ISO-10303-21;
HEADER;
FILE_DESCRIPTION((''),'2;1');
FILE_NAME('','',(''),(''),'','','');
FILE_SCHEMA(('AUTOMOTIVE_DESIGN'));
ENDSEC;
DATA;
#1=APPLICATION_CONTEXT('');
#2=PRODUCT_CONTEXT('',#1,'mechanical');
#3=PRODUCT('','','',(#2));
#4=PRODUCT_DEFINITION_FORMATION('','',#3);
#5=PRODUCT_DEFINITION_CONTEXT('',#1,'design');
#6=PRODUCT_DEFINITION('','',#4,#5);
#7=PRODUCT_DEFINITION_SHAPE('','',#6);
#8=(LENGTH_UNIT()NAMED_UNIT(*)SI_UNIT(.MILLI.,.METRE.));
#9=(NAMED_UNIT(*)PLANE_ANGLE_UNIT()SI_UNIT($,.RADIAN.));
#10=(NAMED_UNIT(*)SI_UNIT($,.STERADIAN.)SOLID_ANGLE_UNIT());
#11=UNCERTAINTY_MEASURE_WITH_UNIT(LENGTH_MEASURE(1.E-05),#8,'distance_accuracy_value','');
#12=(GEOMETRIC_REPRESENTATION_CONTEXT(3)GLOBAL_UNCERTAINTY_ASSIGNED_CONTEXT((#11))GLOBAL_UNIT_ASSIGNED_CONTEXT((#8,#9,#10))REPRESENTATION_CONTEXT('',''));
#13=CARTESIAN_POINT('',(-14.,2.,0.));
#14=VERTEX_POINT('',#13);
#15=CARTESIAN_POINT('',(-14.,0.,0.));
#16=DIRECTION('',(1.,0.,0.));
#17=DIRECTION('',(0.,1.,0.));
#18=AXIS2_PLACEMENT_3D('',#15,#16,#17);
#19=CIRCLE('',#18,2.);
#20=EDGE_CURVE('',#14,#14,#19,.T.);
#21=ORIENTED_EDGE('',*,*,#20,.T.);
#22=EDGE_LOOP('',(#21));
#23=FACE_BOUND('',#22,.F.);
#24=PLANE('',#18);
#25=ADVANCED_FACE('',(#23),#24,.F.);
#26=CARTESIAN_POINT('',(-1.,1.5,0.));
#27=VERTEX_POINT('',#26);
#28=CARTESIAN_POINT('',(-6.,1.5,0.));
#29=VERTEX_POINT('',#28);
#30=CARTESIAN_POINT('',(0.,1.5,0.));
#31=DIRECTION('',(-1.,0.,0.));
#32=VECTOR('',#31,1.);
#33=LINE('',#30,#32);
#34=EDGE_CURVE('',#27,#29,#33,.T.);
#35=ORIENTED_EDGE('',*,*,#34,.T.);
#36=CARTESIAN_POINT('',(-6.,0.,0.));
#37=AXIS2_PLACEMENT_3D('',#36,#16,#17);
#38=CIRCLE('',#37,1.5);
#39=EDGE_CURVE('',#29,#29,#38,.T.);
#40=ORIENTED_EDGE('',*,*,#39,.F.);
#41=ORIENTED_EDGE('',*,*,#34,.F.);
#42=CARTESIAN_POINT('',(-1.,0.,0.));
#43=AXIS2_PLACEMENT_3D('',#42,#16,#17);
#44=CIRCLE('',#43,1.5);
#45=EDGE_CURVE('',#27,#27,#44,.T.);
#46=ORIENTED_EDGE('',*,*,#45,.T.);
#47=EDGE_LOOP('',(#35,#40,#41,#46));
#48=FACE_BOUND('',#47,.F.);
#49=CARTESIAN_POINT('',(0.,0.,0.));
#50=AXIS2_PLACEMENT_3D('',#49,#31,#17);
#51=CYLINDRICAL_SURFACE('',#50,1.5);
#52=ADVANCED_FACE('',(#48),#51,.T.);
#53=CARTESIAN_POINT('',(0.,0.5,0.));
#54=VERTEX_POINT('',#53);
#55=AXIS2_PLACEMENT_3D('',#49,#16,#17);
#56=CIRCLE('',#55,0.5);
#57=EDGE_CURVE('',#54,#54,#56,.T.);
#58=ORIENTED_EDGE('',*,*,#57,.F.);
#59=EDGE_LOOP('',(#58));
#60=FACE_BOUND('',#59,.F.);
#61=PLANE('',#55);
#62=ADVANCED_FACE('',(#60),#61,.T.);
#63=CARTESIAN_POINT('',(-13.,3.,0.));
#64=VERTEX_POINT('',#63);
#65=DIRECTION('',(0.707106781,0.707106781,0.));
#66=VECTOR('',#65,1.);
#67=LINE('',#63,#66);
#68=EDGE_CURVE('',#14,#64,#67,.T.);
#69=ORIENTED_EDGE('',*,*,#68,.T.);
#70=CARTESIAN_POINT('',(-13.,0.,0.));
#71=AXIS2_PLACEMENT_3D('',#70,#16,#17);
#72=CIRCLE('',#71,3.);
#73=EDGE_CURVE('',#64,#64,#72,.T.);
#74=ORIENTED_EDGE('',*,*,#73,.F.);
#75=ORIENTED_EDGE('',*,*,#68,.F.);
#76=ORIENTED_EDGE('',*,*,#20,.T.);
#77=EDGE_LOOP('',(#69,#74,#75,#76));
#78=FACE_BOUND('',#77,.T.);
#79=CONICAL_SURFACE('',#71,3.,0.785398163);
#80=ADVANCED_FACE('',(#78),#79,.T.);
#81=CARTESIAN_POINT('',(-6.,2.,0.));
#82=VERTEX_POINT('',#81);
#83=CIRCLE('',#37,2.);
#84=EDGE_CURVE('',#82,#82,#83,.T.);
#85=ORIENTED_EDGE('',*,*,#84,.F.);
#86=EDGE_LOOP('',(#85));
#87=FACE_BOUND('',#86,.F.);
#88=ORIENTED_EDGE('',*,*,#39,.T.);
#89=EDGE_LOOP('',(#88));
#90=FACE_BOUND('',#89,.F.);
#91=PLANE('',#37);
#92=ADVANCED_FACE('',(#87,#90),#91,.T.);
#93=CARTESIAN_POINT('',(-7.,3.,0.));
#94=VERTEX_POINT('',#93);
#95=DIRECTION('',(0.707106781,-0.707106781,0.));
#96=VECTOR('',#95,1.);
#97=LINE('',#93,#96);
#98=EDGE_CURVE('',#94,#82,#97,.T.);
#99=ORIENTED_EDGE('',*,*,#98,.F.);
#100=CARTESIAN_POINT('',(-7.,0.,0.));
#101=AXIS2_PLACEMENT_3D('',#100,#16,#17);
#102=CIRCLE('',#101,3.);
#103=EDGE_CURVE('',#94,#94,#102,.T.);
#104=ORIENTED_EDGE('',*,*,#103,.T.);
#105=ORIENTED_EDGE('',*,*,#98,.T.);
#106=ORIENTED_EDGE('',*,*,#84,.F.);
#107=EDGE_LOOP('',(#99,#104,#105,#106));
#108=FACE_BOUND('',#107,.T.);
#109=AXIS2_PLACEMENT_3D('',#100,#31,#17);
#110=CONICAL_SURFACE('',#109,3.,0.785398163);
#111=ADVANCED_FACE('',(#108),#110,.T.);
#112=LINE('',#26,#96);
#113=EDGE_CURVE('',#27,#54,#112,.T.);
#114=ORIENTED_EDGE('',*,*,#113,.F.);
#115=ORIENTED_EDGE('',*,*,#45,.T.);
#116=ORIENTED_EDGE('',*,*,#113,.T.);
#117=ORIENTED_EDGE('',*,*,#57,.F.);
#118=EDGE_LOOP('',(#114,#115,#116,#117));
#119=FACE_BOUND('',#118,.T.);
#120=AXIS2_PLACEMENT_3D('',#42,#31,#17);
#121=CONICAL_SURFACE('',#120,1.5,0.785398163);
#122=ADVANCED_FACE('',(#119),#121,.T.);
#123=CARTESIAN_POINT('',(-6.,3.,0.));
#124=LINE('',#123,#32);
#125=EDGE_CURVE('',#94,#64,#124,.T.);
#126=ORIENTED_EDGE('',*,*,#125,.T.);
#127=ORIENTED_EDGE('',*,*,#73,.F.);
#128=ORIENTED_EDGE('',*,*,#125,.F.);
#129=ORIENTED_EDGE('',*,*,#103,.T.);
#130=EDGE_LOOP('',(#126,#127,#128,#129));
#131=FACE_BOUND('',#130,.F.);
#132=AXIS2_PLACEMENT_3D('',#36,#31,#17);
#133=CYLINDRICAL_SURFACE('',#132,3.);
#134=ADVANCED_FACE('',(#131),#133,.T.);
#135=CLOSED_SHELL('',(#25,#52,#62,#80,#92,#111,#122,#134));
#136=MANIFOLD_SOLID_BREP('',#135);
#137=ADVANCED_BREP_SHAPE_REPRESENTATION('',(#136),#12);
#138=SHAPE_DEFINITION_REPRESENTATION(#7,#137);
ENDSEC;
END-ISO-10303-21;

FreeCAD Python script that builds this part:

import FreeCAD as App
import Part
import Sketcher


def edges_at(feature, points):
    """Names of the edges that pass closest to the given points."""
    edges = feature.Shape.Edges
    near = lambda p: min(range(len(edges)), key=lambda i: edges[i].distToShape(Part.Vertex(*p))[0])
    return sorted({f"Edge{near(p) + 1}" for p in points})

doc = App.newDocument("Part")
body = doc.addObject("PartDesign::Body", "Body")

sketch1 = body.newObject("Sketcher::SketchObject", "Sketch")
sketch1.AttachmentSupport = (doc.getObject("XY_Plane"), [""])
sketch1.MapMode = "FlatFace"
sketch1.addGeometry([
    Part.LineSegment(App.Vector(-14, 3, 0), App.Vector(-14, 0, 0)),
    Part.LineSegment(App.Vector(-14, 0, 0), App.Vector(0, 0, 0)),
    Part.LineSegment(App.Vector(0, 0, 0), App.Vector(0, 1.5, 0)),
    Part.LineSegment(App.Vector(0, 1.5, 0), App.Vector(-6, 1.5, 0)),
    Part.LineSegment(App.Vector(-6, 1.5, 0), App.Vector(-6, 3, 0)),
    Part.LineSegment(App.Vector(-6, 3, 0), App.Vector(-14, 3, 0)),
], False)
sketch1.addConstraint([
    Sketcher.Constraint("Coincident", 0, 2, 1, 1),
    Sketcher.Constraint("Coincident", 1, 2, 2, 1),
    Sketcher.Constraint("Coincident", 2, 2, 3, 1),
    Sketcher.Constraint("Coincident", 3, 2, 4, 1),
    Sketcher.Constraint("Coincident", 4, 2, 5, 1),
    Sketcher.Constraint("Coincident", 5, 2, 0, 1),
    Sketcher.Constraint("Vertical", 0),
    Sketcher.Constraint("Horizontal", 1),
    Sketcher.Constraint("Vertical", 2),
    Sketcher.Constraint("Horizontal", 3),
    Sketcher.Constraint("Vertical", 4),
    Sketcher.Constraint("Horizontal", 5),
    Sketcher.Constraint("Coincident", 1, 2, -1, 1),
    Sketcher.Constraint("Equal", 2, 4),
    Sketcher.Constraint("DistanceX", 3, 2, 3, 1, 6.0),
    Sketcher.Constraint("DistanceX", 5, 2, 5, 1, 8.0),
    Sketcher.Constraint("DistanceY", 0, 2, 0, 1, 3.0),
])
revolution = body.newObject("PartDesign::Revolution", "Revolution")
revolution.Profile = sketch1
revolution.ReferenceAxis = (sketch1, ["H_Axis"])
revolution.Angle = 360
doc.recompute()

chamfer = body.newObject("PartDesign::Chamfer", "Chamfer")
chamfer.Base = (revolution, edges_at(revolution, [(-14, -3, 0), (-6, -3, 0), (0, -1.5, 0)]))
chamfer.Size = 1

doc.recompute()
